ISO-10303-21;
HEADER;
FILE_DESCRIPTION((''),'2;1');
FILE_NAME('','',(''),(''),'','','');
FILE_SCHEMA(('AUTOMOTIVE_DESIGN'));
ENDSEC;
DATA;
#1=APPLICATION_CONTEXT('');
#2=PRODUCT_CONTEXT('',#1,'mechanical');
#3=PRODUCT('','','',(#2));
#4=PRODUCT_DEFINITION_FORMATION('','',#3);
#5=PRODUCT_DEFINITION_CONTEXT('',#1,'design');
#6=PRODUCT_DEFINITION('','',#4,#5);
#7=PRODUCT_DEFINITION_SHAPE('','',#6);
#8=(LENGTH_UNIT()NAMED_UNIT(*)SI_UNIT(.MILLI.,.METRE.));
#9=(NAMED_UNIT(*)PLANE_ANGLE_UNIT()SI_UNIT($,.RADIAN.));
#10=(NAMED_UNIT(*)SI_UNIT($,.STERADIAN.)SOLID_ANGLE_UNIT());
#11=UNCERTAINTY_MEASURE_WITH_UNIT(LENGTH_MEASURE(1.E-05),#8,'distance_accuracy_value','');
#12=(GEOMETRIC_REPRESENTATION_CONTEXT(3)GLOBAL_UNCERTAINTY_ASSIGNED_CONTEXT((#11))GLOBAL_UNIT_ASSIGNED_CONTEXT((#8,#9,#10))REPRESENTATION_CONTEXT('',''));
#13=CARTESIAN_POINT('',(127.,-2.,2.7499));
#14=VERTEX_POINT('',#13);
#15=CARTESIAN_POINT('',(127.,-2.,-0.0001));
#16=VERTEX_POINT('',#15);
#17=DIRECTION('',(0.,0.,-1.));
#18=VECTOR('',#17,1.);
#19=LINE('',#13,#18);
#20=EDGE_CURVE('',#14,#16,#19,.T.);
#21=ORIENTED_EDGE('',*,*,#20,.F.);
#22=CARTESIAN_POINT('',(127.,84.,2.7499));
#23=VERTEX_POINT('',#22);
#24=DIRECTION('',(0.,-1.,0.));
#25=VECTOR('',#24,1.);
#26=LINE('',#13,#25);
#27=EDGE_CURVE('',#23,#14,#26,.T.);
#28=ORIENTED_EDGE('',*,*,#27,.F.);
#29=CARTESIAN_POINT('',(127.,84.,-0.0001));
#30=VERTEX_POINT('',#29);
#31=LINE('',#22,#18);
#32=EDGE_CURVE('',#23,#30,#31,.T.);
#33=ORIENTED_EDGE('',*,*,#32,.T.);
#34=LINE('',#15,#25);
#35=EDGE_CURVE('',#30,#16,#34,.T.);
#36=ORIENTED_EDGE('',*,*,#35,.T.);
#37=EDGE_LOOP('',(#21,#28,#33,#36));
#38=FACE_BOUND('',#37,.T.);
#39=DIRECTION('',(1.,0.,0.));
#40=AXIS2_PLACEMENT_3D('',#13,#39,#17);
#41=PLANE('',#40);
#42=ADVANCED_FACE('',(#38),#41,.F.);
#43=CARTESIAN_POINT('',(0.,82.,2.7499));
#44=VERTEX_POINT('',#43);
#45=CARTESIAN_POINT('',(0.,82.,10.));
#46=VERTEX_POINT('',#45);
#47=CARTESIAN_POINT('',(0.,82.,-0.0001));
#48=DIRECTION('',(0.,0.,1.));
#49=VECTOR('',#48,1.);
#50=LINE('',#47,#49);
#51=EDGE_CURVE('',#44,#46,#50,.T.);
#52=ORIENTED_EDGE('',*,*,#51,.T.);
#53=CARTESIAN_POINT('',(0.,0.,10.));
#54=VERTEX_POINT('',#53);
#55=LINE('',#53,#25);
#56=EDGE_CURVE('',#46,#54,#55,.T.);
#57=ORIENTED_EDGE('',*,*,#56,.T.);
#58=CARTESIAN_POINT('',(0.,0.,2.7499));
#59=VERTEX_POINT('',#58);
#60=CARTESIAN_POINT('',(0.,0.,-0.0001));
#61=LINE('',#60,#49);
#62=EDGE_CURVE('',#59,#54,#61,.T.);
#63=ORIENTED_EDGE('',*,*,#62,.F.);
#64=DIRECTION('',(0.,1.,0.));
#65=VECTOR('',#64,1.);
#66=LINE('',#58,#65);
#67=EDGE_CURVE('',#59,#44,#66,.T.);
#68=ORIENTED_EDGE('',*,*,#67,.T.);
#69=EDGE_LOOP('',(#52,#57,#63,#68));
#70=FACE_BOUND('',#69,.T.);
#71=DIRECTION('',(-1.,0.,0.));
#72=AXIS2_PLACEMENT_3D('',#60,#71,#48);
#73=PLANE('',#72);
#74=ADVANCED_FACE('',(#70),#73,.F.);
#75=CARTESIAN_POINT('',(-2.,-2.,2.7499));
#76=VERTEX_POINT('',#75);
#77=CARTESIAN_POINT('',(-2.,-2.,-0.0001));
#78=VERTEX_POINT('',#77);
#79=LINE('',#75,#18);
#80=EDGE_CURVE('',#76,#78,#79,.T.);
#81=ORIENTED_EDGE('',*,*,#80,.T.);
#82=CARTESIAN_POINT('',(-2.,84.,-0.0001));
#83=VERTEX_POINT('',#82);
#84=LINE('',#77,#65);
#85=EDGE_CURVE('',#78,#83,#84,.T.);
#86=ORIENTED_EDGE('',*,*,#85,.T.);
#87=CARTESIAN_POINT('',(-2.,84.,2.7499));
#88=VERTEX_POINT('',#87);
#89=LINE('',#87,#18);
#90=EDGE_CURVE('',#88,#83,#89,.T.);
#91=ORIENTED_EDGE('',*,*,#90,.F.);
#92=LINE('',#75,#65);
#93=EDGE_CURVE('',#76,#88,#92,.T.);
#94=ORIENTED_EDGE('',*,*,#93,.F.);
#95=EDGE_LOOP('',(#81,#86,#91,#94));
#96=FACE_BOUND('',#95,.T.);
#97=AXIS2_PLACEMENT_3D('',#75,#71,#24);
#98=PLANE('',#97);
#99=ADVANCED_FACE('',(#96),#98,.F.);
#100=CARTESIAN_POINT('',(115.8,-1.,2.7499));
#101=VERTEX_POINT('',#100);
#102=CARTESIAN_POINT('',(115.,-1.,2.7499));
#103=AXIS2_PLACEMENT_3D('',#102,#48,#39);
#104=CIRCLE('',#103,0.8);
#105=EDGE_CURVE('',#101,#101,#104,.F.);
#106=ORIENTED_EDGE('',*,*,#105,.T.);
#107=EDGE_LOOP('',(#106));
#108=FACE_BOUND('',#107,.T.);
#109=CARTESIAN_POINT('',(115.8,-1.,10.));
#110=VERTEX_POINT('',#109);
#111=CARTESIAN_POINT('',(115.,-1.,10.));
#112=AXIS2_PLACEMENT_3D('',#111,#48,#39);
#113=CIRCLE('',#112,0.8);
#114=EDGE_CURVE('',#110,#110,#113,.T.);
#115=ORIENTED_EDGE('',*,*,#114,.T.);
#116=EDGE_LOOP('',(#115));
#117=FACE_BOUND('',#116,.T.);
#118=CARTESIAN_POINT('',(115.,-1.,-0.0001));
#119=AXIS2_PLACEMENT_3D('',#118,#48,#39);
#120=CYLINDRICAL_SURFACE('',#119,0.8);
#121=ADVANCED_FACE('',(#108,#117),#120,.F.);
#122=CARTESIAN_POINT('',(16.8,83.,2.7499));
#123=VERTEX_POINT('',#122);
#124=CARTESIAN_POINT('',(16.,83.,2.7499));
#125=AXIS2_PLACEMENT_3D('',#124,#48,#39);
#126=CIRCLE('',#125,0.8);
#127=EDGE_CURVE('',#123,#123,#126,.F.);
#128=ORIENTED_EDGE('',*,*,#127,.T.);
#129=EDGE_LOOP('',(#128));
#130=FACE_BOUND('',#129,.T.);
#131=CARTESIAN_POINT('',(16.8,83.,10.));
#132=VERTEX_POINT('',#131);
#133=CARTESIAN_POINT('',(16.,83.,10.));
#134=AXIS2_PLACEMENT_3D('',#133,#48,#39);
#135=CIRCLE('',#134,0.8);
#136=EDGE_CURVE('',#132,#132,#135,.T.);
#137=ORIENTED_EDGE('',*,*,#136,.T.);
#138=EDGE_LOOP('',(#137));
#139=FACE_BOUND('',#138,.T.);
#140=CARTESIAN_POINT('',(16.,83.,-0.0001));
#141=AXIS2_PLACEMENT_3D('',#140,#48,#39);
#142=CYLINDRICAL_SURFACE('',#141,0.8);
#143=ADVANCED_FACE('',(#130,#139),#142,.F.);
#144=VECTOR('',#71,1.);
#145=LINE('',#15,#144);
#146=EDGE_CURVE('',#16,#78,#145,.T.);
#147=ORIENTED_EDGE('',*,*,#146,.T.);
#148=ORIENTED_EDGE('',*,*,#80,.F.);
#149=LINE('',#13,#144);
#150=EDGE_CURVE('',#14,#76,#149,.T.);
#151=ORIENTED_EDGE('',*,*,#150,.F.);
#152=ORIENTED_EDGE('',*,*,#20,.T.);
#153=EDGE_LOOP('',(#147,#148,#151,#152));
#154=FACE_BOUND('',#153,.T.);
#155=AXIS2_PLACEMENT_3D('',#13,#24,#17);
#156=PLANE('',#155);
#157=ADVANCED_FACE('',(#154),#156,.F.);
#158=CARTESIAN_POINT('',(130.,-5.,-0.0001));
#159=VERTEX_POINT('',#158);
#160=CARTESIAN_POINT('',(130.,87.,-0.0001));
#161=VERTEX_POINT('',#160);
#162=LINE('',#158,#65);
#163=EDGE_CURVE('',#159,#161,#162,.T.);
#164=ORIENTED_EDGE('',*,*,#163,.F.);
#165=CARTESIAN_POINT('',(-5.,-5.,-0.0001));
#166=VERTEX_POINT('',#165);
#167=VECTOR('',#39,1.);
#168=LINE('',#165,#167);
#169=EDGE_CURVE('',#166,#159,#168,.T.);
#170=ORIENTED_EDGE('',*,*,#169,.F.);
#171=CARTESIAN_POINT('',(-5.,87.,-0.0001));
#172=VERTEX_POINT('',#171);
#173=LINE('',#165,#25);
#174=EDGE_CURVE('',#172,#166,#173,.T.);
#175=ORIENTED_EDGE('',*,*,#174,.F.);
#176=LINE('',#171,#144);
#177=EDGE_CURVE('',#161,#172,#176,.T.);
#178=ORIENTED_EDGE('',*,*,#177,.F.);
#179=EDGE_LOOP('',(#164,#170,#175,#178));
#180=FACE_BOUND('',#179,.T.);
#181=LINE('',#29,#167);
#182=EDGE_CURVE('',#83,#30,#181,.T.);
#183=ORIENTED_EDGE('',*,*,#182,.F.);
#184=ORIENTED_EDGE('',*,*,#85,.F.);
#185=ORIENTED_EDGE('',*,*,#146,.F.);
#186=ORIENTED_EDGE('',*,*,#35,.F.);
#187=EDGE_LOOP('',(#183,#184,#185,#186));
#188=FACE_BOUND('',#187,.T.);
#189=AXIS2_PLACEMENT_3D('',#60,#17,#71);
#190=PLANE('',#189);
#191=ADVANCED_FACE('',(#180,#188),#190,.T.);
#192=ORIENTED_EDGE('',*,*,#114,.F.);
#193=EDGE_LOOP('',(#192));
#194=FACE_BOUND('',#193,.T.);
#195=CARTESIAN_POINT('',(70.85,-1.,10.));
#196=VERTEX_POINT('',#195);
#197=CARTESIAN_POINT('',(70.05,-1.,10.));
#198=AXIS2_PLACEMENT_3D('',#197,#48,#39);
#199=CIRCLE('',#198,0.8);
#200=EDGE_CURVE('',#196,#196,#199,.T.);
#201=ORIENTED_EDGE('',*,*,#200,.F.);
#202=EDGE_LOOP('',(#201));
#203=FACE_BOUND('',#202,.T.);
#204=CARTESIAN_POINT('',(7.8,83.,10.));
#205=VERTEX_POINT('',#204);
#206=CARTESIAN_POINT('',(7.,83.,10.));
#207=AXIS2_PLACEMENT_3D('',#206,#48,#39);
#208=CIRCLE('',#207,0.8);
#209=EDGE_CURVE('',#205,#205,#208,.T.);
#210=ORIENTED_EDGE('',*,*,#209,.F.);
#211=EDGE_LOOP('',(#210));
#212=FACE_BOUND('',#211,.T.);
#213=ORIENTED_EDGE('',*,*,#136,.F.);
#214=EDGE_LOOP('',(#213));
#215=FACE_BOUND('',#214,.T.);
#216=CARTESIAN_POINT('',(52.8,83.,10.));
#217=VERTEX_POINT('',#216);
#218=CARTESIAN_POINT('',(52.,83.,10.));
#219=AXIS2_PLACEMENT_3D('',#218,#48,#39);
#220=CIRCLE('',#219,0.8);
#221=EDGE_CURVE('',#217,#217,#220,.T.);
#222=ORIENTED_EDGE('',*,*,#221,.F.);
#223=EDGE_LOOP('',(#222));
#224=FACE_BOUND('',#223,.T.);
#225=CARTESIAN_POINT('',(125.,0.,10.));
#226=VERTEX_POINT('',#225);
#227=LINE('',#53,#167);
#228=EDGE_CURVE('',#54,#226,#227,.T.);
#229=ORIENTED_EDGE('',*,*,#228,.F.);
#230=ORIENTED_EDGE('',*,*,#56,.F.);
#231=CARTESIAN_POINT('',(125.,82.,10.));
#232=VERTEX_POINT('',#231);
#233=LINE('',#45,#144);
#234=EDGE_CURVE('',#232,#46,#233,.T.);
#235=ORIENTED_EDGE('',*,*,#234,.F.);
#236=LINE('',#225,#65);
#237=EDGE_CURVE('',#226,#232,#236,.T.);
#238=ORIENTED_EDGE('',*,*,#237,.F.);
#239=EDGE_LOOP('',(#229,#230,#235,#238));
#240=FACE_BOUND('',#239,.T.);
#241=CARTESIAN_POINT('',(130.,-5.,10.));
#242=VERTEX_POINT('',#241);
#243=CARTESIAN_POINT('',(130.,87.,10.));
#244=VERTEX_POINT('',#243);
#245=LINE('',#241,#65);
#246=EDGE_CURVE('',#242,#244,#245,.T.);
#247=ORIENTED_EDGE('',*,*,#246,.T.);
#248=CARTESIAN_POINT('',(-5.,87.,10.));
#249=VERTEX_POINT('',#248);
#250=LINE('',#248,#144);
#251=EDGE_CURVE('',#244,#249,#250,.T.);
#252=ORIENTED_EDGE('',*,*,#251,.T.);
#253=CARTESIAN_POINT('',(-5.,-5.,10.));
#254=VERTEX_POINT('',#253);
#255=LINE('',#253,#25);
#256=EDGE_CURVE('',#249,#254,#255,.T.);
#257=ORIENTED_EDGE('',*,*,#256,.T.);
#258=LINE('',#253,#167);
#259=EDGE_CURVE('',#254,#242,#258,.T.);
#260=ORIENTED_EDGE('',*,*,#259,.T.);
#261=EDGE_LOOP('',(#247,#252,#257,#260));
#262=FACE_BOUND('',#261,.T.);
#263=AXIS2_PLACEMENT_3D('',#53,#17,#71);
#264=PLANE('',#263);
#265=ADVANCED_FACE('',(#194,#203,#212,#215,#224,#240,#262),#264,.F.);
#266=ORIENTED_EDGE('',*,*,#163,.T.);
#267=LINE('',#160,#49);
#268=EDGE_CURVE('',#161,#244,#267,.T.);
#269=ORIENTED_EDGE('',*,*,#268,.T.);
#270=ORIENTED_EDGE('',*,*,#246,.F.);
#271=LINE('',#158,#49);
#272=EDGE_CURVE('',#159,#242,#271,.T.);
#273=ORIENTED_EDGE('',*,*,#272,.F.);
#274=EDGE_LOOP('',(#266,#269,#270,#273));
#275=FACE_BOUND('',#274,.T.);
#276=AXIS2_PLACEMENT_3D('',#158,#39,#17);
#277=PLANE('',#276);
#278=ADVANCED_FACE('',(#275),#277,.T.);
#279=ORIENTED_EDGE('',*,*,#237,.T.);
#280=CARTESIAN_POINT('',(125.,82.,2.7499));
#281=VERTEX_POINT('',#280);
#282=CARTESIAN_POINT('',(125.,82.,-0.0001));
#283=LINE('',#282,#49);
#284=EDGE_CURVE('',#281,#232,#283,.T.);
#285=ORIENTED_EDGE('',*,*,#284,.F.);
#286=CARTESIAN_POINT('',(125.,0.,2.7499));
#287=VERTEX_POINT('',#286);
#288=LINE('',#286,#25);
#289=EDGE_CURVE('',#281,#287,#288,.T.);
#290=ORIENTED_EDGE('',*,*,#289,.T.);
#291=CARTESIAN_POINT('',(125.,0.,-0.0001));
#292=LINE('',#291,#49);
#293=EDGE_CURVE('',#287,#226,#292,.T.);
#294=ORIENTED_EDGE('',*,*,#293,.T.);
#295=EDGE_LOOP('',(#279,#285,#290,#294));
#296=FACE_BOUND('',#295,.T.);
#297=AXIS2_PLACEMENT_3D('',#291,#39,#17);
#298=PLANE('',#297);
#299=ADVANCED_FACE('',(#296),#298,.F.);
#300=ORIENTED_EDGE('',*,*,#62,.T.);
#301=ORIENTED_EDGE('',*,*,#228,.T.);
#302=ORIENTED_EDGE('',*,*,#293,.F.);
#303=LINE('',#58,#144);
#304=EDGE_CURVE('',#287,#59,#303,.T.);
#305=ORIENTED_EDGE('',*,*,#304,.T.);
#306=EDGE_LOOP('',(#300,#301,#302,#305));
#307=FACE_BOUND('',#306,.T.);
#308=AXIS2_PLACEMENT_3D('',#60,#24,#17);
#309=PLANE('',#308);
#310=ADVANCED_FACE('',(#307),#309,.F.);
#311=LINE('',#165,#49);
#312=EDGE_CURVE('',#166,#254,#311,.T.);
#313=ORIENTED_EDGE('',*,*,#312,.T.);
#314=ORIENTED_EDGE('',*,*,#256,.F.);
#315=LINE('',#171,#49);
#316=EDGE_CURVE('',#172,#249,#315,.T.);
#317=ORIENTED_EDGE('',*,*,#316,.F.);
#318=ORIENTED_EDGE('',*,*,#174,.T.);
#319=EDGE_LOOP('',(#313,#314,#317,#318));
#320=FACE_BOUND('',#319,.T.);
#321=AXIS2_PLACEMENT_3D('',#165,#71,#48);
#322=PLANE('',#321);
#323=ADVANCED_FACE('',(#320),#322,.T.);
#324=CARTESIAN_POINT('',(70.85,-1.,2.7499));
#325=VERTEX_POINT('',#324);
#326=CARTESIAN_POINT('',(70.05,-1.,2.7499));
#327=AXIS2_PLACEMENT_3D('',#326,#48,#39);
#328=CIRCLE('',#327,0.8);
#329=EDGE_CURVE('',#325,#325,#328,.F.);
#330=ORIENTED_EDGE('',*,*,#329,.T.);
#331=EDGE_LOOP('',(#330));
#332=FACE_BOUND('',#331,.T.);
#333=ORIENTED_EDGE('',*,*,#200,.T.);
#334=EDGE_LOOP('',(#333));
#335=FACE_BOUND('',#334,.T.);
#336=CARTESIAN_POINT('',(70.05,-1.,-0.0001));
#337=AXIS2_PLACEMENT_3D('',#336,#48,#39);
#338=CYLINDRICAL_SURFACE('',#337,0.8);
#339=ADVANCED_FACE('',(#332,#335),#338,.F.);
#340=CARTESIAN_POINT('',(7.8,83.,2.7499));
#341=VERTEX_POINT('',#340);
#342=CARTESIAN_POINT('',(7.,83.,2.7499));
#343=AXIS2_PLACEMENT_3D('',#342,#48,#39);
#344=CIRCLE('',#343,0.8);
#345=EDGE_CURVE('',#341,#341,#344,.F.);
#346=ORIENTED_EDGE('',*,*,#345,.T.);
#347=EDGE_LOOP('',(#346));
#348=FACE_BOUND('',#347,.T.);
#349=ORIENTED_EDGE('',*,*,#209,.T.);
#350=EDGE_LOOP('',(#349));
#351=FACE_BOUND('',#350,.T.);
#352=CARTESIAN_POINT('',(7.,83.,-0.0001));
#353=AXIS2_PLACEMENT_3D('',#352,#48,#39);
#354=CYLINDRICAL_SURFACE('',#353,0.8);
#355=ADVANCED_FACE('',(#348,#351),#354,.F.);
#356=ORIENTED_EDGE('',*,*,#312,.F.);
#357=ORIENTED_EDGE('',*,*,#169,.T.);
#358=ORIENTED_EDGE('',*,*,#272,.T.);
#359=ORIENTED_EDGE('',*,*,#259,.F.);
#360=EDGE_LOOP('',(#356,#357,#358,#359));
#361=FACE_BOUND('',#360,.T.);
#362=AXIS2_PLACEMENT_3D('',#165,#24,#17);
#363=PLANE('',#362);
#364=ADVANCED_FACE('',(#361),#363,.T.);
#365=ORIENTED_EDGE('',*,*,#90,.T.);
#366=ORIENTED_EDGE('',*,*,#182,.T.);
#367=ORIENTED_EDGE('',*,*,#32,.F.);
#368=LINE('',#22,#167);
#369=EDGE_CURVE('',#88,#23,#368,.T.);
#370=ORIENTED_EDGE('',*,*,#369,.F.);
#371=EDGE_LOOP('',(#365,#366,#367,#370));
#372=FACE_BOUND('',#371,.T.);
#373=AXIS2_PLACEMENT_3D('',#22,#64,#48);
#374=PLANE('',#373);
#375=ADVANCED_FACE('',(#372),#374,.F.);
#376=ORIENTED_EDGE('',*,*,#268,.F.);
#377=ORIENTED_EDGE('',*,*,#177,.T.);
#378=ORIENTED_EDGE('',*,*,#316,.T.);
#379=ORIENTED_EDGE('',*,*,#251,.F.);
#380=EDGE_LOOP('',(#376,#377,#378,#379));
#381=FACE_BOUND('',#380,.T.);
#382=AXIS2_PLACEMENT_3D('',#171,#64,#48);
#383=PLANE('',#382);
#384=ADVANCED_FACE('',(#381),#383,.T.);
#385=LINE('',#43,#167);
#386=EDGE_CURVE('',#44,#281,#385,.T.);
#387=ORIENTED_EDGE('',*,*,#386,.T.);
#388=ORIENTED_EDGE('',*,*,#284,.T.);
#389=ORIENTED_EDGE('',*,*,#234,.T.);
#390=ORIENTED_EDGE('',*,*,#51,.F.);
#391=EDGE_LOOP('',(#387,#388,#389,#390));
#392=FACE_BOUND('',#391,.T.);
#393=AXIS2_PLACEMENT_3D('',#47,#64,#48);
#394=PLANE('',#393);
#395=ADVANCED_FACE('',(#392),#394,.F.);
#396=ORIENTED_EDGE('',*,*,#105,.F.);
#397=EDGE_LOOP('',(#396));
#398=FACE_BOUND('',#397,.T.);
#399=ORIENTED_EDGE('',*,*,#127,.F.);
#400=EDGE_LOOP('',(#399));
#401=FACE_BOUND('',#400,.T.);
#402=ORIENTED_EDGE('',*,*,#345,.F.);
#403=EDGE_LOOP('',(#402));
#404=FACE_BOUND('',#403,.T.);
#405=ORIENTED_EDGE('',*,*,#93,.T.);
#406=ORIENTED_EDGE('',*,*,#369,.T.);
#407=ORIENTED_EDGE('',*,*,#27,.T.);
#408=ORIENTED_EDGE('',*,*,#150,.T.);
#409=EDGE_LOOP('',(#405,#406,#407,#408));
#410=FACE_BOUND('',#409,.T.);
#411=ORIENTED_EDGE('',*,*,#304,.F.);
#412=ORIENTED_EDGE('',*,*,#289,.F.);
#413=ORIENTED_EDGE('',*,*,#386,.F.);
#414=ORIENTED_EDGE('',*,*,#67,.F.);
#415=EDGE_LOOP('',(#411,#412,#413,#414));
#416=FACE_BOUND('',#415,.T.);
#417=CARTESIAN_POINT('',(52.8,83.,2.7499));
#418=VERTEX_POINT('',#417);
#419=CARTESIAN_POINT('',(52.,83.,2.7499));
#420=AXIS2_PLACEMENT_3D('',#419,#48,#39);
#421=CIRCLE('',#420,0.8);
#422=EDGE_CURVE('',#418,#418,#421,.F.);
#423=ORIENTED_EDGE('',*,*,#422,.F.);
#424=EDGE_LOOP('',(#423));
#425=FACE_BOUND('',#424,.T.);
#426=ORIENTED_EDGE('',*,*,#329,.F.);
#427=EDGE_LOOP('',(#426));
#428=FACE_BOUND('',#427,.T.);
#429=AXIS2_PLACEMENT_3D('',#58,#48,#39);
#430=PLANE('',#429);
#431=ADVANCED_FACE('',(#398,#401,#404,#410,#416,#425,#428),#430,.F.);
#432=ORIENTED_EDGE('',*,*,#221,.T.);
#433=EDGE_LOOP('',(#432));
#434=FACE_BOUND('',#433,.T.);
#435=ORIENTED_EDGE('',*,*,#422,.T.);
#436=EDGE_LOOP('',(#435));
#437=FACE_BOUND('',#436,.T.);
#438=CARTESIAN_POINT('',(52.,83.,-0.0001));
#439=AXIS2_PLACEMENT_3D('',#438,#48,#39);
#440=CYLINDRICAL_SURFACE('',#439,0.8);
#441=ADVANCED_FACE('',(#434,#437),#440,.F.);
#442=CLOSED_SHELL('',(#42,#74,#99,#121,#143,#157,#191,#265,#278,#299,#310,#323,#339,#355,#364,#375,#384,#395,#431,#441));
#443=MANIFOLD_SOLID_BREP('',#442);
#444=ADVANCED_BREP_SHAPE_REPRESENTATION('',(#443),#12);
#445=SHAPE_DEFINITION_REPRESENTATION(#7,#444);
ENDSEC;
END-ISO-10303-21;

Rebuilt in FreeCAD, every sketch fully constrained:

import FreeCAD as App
import Part
import Sketcher
from FreeCAD import Vector
Q = App.Units.Quantity


def add_polygon(sketch, points):
    """Adds a closed chain of lines whose ends are joined by coincident constraints."""
    first, n = sketch.GeometryCount, len(points)
    for a, b in zip(points, points[1:] + points[:1]):
        sketch.addGeometry(Part.LineSegment(App.Vector(*a, 0), App.Vector(*b, 0)), False)
    for i in range(n):
        sketch.addConstraint(Sketcher.Constraint("Coincident", first + i, 2, first + (i + 1) % n, 1))

doc = App.newDocument("Part")
body = doc.addObject("PartDesign::Body", "Body")

# Sketch on XY plane
sketch1 = body.newObject("Sketcher::SketchObject", "Sketch")
sketch1.AttachmentSupport = (doc.getObject("XY_Plane"), [""])
sketch1.MapMode = "FlatFace"
add_polygon(sketch1, [(-5, 87), (-5, -5), (130, -5), (130, 87)])  # lines 0-3
sketch1.addGeometry(Part.Circle(Vector(70.05, -1, 0), Vector(0, 0, 1), 0.8), False)  # 4
sketch1.addGeometry(Part.Circle(Vector(115, -1, 0), Vector(0, 0, 1), 0.8), False)  # 5
sketch1.addGeometry(Part.Circle(Vector(7, 83, 0), Vector(0, 0, 1), 0.8), False)  # 6
sketch1.addGeometry(Part.Circle(Vector(16, 83, 0), Vector(0, 0, 1), 0.8), False)  # 7
sketch1.addGeometry(Part.Circle(Vector(52, 83, 0), Vector(0, 0, 1), 0.8), False)  # 8
add_polygon(sketch1, [(125, 0), (0, 0), (0, 82), (125, 82)])  # lines 9-12
sketch1.addConstraint([
    Sketcher.Constraint("Vertical", 0),
    Sketcher.Constraint("Horizontal", 1),
    Sketcher.Constraint("Vertical", 2),
    Sketcher.Constraint("Horizontal", 3),
    Sketcher.Constraint("Horizontal", 9),
    Sketcher.Constraint("Vertical", 10),
    Sketcher.Constraint("Horizontal", 11),
    Sketcher.Constraint("Vertical", 12),
    Sketcher.Constraint("Coincident", 9, 2, -1, 1),
    Sketcher.Constraint("Equal", 4, 5),
    Sketcher.Constraint("Equal", 5, 6),
    Sketcher.Constraint("Equal", 6, 7),
    Sketcher.Constraint("Equal", 7, 8),
    Sketcher.Constraint("Horizontal", 4, 3, 5, 3),
    Sketcher.Constraint("Horizontal", 6, 3, 7, 3),
    Sketcher.Constraint("Horizontal", 7, 3, 8, 3),
    Sketcher.Constraint("Diameter", 4, Q("1.6 mm")),
    Sketcher.Constraint("DistanceX", 1, 1, 1, 2, Q("135 mm")),
    Sketcher.Constraint("DistanceX", 9, 2, 9, 1, Q("125 mm")),
    Sketcher.Constraint("DistanceY", 0, 2, 0, 1, Q("92 mm")),
    Sketcher.Constraint("DistanceY", 10, 1, 10, 2, Q("82 mm")),
    Sketcher.Constraint("DistanceY", 4, 3, -1, 1, Q("1 mm")),
    Sketcher.Constraint("DistanceX", -1, 1, 5, 3, Q("115 mm")),
    Sketcher.Constraint("DistanceX", -1, 1, 6, 3, Q("7 mm")),
    Sketcher.Constraint("DistanceY", -1, 1, 6, 3, Q("83 mm")),
    Sketcher.Constraint("DistanceX", -1, 1, 7, 3, Q("16 mm")),
    Sketcher.Constraint("DistanceX", -1, 1, 8, 3, Q("52 mm")),
    Sketcher.Constraint("DistanceX", 0, 2, -1, 1, Q("5 mm")),
    Sketcher.Constraint("DistanceY", 0, 2, -1, 1, Q("5 mm")),
    Sketcher.Constraint("DistanceX", -1, 1, 4, 3, Q("70.05 mm")),
])
pad1 = body.newObject("PartDesign::Pad", "Pad")
pad1.Profile = sketch1
pad1.Type = "TwoLengths"
pad1.Length = 10
pad1.Length2 = 0.0001

# Sketch on XY plane
sketch2 = body.newObject("Sketcher::SketchObject", "Sketch001")
sketch2.AttachmentSupport = (doc.getObject("XY_Plane"), [""])
sketch2.MapMode = "FlatFace"
sketch2.AttachmentOffset = App.Placement(Vector(0, 0, -0.0001), App.Rotation())
add_polygon(sketch2, [(127, 84), (127, -2), (-2, -2), (-2, 84)])  # lines 0-3
sketch2.addConstraint([
    Sketcher.Constraint("Vertical", 0),
    Sketcher.Constraint("Horizontal", 1),
    Sketcher.Constraint("Vertical", 2),
    Sketcher.Constraint("Horizontal", 3),
    Sketcher.Constraint("DistanceX", 1, 2, 1, 1, Q("129 mm")),
    Sketcher.Constraint("DistanceY", 0, 2, 0, 1, Q("86 mm")),
    Sketcher.Constraint("DistanceX", -1, 1, 0, 2, Q("127 mm")),
    Sketcher.Constraint("DistanceY", 0, 2, -1, 1, Q("2 mm")),
])
pocket1 = body.newObject("PartDesign::Pocket", "Pocket")
pocket1.Profile = sketch2
pocket1.Length = 2.75
pocket1.Reversed = True

doc.recompute()
